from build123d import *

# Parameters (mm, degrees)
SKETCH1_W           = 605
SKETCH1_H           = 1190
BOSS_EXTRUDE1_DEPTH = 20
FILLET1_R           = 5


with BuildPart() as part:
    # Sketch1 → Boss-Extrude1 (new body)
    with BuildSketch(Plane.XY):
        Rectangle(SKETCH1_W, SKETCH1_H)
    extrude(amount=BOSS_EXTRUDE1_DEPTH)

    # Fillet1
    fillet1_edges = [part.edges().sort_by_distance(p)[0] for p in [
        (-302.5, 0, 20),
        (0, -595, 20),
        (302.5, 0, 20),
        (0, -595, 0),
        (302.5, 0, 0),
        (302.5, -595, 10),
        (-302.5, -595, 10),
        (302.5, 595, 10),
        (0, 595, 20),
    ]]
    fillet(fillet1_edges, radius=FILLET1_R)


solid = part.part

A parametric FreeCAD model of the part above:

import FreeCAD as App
import Part
import Sketcher
Q = App.Units.Quantity


def edges_at(feature, points):
    """Names of the edges that pass closest to the given points."""
    edges = feature.Shape.Edges
    near = lambda p: min(range(len(edges)), key=lambda i: edges[i].distToShape(Part.Vertex(*p))[0])
    return sorted({f"Edge{near(p) + 1}" for p in points})


def add_polygon(sketch, points):
    """Adds a closed chain of lines whose ends are joined by coincident constraints."""
    first, n = sketch.GeometryCount, len(points)
    for a, b in zip(points, points[1:] + points[:1]):
        sketch.addGeometry(Part.LineSegment(App.Vector(*a, 0), App.Vector(*b, 0)), False)
    for i in range(n):
        sketch.addConstraint(Sketcher.Constraint("Coincident", first + i, 2, first + (i + 1) % n, 1))

doc = App.newDocument("Part")
params = doc.addObject("Spreadsheet::Sheet", "Params")
for row, (alias, value) in enumerate([
    ("sketch1_width", "605 mm"),
    ("sketch1_height", "1190 mm"),
    ("pad1_length", "20 mm"),
    ("fillet_radius", "5 mm"),
], start=1):
    params.set(f"A{row}", alias)
    params.set(f"B{row}", "=" + value)
    params.setAlias(f"B{row}", alias)

body = doc.addObject("PartDesign::Body", "Body")

# Sketch on XY plane
sketch1 = body.newObject("Sketcher::SketchObject", "Sketch")
sketch1.AttachmentSupport = (doc.getObject("XY_Plane"), [""])
sketch1.MapMode = "FlatFace"
add_polygon(sketch1, [(-302, 595), (-302, -595), (302, -595), (302, 595)])  # lines 0-3
sketch1.addConstraint([
    Sketcher.Constraint("Vertical", 0),
    Sketcher.Constraint("Horizontal", 1),
    Sketcher.Constraint("Vertical", 2),
    Sketcher.Constraint("Horizontal", 3),
    Sketcher.Constraint("Symmetric", 0, 2, 2, 2, -1, 1),
    Sketcher.Constraint("DistanceX", 1, 1, 1, 2, Q("605 mm")),
    Sketcher.Constraint("DistanceY", 0, 2, 0, 1, Q("1190 mm")),
])
sketch1.setExpression("Constraints[9]", "Params.sketch1_width")
sketch1.setExpression("Constraints[10]", "Params.sketch1_height")
pad1 = body.newObject("PartDesign::Pad", "Pad")
pad1.Profile = sketch1
pad1.setExpression("Length", "Params.pad1_length")
doc.recompute()

fillet = body.newObject("PartDesign::Fillet", "Fillet")
fillet.Base = (pad1, edges_at(pad1, [
    (-302.5, 0, 20),
    (0, -595, 20),
    (302.5, 0, 20),
    (0, -595, 0),
    (302.5, 0, 0),
    (302.5, -595, 10),
    (-302.5, -595, 10),
    (302.5, 595, 10),
    (0, 595, 20),
]))
fillet.setExpression("Radius", "Params.fillet_radius")

doc.recompute()
